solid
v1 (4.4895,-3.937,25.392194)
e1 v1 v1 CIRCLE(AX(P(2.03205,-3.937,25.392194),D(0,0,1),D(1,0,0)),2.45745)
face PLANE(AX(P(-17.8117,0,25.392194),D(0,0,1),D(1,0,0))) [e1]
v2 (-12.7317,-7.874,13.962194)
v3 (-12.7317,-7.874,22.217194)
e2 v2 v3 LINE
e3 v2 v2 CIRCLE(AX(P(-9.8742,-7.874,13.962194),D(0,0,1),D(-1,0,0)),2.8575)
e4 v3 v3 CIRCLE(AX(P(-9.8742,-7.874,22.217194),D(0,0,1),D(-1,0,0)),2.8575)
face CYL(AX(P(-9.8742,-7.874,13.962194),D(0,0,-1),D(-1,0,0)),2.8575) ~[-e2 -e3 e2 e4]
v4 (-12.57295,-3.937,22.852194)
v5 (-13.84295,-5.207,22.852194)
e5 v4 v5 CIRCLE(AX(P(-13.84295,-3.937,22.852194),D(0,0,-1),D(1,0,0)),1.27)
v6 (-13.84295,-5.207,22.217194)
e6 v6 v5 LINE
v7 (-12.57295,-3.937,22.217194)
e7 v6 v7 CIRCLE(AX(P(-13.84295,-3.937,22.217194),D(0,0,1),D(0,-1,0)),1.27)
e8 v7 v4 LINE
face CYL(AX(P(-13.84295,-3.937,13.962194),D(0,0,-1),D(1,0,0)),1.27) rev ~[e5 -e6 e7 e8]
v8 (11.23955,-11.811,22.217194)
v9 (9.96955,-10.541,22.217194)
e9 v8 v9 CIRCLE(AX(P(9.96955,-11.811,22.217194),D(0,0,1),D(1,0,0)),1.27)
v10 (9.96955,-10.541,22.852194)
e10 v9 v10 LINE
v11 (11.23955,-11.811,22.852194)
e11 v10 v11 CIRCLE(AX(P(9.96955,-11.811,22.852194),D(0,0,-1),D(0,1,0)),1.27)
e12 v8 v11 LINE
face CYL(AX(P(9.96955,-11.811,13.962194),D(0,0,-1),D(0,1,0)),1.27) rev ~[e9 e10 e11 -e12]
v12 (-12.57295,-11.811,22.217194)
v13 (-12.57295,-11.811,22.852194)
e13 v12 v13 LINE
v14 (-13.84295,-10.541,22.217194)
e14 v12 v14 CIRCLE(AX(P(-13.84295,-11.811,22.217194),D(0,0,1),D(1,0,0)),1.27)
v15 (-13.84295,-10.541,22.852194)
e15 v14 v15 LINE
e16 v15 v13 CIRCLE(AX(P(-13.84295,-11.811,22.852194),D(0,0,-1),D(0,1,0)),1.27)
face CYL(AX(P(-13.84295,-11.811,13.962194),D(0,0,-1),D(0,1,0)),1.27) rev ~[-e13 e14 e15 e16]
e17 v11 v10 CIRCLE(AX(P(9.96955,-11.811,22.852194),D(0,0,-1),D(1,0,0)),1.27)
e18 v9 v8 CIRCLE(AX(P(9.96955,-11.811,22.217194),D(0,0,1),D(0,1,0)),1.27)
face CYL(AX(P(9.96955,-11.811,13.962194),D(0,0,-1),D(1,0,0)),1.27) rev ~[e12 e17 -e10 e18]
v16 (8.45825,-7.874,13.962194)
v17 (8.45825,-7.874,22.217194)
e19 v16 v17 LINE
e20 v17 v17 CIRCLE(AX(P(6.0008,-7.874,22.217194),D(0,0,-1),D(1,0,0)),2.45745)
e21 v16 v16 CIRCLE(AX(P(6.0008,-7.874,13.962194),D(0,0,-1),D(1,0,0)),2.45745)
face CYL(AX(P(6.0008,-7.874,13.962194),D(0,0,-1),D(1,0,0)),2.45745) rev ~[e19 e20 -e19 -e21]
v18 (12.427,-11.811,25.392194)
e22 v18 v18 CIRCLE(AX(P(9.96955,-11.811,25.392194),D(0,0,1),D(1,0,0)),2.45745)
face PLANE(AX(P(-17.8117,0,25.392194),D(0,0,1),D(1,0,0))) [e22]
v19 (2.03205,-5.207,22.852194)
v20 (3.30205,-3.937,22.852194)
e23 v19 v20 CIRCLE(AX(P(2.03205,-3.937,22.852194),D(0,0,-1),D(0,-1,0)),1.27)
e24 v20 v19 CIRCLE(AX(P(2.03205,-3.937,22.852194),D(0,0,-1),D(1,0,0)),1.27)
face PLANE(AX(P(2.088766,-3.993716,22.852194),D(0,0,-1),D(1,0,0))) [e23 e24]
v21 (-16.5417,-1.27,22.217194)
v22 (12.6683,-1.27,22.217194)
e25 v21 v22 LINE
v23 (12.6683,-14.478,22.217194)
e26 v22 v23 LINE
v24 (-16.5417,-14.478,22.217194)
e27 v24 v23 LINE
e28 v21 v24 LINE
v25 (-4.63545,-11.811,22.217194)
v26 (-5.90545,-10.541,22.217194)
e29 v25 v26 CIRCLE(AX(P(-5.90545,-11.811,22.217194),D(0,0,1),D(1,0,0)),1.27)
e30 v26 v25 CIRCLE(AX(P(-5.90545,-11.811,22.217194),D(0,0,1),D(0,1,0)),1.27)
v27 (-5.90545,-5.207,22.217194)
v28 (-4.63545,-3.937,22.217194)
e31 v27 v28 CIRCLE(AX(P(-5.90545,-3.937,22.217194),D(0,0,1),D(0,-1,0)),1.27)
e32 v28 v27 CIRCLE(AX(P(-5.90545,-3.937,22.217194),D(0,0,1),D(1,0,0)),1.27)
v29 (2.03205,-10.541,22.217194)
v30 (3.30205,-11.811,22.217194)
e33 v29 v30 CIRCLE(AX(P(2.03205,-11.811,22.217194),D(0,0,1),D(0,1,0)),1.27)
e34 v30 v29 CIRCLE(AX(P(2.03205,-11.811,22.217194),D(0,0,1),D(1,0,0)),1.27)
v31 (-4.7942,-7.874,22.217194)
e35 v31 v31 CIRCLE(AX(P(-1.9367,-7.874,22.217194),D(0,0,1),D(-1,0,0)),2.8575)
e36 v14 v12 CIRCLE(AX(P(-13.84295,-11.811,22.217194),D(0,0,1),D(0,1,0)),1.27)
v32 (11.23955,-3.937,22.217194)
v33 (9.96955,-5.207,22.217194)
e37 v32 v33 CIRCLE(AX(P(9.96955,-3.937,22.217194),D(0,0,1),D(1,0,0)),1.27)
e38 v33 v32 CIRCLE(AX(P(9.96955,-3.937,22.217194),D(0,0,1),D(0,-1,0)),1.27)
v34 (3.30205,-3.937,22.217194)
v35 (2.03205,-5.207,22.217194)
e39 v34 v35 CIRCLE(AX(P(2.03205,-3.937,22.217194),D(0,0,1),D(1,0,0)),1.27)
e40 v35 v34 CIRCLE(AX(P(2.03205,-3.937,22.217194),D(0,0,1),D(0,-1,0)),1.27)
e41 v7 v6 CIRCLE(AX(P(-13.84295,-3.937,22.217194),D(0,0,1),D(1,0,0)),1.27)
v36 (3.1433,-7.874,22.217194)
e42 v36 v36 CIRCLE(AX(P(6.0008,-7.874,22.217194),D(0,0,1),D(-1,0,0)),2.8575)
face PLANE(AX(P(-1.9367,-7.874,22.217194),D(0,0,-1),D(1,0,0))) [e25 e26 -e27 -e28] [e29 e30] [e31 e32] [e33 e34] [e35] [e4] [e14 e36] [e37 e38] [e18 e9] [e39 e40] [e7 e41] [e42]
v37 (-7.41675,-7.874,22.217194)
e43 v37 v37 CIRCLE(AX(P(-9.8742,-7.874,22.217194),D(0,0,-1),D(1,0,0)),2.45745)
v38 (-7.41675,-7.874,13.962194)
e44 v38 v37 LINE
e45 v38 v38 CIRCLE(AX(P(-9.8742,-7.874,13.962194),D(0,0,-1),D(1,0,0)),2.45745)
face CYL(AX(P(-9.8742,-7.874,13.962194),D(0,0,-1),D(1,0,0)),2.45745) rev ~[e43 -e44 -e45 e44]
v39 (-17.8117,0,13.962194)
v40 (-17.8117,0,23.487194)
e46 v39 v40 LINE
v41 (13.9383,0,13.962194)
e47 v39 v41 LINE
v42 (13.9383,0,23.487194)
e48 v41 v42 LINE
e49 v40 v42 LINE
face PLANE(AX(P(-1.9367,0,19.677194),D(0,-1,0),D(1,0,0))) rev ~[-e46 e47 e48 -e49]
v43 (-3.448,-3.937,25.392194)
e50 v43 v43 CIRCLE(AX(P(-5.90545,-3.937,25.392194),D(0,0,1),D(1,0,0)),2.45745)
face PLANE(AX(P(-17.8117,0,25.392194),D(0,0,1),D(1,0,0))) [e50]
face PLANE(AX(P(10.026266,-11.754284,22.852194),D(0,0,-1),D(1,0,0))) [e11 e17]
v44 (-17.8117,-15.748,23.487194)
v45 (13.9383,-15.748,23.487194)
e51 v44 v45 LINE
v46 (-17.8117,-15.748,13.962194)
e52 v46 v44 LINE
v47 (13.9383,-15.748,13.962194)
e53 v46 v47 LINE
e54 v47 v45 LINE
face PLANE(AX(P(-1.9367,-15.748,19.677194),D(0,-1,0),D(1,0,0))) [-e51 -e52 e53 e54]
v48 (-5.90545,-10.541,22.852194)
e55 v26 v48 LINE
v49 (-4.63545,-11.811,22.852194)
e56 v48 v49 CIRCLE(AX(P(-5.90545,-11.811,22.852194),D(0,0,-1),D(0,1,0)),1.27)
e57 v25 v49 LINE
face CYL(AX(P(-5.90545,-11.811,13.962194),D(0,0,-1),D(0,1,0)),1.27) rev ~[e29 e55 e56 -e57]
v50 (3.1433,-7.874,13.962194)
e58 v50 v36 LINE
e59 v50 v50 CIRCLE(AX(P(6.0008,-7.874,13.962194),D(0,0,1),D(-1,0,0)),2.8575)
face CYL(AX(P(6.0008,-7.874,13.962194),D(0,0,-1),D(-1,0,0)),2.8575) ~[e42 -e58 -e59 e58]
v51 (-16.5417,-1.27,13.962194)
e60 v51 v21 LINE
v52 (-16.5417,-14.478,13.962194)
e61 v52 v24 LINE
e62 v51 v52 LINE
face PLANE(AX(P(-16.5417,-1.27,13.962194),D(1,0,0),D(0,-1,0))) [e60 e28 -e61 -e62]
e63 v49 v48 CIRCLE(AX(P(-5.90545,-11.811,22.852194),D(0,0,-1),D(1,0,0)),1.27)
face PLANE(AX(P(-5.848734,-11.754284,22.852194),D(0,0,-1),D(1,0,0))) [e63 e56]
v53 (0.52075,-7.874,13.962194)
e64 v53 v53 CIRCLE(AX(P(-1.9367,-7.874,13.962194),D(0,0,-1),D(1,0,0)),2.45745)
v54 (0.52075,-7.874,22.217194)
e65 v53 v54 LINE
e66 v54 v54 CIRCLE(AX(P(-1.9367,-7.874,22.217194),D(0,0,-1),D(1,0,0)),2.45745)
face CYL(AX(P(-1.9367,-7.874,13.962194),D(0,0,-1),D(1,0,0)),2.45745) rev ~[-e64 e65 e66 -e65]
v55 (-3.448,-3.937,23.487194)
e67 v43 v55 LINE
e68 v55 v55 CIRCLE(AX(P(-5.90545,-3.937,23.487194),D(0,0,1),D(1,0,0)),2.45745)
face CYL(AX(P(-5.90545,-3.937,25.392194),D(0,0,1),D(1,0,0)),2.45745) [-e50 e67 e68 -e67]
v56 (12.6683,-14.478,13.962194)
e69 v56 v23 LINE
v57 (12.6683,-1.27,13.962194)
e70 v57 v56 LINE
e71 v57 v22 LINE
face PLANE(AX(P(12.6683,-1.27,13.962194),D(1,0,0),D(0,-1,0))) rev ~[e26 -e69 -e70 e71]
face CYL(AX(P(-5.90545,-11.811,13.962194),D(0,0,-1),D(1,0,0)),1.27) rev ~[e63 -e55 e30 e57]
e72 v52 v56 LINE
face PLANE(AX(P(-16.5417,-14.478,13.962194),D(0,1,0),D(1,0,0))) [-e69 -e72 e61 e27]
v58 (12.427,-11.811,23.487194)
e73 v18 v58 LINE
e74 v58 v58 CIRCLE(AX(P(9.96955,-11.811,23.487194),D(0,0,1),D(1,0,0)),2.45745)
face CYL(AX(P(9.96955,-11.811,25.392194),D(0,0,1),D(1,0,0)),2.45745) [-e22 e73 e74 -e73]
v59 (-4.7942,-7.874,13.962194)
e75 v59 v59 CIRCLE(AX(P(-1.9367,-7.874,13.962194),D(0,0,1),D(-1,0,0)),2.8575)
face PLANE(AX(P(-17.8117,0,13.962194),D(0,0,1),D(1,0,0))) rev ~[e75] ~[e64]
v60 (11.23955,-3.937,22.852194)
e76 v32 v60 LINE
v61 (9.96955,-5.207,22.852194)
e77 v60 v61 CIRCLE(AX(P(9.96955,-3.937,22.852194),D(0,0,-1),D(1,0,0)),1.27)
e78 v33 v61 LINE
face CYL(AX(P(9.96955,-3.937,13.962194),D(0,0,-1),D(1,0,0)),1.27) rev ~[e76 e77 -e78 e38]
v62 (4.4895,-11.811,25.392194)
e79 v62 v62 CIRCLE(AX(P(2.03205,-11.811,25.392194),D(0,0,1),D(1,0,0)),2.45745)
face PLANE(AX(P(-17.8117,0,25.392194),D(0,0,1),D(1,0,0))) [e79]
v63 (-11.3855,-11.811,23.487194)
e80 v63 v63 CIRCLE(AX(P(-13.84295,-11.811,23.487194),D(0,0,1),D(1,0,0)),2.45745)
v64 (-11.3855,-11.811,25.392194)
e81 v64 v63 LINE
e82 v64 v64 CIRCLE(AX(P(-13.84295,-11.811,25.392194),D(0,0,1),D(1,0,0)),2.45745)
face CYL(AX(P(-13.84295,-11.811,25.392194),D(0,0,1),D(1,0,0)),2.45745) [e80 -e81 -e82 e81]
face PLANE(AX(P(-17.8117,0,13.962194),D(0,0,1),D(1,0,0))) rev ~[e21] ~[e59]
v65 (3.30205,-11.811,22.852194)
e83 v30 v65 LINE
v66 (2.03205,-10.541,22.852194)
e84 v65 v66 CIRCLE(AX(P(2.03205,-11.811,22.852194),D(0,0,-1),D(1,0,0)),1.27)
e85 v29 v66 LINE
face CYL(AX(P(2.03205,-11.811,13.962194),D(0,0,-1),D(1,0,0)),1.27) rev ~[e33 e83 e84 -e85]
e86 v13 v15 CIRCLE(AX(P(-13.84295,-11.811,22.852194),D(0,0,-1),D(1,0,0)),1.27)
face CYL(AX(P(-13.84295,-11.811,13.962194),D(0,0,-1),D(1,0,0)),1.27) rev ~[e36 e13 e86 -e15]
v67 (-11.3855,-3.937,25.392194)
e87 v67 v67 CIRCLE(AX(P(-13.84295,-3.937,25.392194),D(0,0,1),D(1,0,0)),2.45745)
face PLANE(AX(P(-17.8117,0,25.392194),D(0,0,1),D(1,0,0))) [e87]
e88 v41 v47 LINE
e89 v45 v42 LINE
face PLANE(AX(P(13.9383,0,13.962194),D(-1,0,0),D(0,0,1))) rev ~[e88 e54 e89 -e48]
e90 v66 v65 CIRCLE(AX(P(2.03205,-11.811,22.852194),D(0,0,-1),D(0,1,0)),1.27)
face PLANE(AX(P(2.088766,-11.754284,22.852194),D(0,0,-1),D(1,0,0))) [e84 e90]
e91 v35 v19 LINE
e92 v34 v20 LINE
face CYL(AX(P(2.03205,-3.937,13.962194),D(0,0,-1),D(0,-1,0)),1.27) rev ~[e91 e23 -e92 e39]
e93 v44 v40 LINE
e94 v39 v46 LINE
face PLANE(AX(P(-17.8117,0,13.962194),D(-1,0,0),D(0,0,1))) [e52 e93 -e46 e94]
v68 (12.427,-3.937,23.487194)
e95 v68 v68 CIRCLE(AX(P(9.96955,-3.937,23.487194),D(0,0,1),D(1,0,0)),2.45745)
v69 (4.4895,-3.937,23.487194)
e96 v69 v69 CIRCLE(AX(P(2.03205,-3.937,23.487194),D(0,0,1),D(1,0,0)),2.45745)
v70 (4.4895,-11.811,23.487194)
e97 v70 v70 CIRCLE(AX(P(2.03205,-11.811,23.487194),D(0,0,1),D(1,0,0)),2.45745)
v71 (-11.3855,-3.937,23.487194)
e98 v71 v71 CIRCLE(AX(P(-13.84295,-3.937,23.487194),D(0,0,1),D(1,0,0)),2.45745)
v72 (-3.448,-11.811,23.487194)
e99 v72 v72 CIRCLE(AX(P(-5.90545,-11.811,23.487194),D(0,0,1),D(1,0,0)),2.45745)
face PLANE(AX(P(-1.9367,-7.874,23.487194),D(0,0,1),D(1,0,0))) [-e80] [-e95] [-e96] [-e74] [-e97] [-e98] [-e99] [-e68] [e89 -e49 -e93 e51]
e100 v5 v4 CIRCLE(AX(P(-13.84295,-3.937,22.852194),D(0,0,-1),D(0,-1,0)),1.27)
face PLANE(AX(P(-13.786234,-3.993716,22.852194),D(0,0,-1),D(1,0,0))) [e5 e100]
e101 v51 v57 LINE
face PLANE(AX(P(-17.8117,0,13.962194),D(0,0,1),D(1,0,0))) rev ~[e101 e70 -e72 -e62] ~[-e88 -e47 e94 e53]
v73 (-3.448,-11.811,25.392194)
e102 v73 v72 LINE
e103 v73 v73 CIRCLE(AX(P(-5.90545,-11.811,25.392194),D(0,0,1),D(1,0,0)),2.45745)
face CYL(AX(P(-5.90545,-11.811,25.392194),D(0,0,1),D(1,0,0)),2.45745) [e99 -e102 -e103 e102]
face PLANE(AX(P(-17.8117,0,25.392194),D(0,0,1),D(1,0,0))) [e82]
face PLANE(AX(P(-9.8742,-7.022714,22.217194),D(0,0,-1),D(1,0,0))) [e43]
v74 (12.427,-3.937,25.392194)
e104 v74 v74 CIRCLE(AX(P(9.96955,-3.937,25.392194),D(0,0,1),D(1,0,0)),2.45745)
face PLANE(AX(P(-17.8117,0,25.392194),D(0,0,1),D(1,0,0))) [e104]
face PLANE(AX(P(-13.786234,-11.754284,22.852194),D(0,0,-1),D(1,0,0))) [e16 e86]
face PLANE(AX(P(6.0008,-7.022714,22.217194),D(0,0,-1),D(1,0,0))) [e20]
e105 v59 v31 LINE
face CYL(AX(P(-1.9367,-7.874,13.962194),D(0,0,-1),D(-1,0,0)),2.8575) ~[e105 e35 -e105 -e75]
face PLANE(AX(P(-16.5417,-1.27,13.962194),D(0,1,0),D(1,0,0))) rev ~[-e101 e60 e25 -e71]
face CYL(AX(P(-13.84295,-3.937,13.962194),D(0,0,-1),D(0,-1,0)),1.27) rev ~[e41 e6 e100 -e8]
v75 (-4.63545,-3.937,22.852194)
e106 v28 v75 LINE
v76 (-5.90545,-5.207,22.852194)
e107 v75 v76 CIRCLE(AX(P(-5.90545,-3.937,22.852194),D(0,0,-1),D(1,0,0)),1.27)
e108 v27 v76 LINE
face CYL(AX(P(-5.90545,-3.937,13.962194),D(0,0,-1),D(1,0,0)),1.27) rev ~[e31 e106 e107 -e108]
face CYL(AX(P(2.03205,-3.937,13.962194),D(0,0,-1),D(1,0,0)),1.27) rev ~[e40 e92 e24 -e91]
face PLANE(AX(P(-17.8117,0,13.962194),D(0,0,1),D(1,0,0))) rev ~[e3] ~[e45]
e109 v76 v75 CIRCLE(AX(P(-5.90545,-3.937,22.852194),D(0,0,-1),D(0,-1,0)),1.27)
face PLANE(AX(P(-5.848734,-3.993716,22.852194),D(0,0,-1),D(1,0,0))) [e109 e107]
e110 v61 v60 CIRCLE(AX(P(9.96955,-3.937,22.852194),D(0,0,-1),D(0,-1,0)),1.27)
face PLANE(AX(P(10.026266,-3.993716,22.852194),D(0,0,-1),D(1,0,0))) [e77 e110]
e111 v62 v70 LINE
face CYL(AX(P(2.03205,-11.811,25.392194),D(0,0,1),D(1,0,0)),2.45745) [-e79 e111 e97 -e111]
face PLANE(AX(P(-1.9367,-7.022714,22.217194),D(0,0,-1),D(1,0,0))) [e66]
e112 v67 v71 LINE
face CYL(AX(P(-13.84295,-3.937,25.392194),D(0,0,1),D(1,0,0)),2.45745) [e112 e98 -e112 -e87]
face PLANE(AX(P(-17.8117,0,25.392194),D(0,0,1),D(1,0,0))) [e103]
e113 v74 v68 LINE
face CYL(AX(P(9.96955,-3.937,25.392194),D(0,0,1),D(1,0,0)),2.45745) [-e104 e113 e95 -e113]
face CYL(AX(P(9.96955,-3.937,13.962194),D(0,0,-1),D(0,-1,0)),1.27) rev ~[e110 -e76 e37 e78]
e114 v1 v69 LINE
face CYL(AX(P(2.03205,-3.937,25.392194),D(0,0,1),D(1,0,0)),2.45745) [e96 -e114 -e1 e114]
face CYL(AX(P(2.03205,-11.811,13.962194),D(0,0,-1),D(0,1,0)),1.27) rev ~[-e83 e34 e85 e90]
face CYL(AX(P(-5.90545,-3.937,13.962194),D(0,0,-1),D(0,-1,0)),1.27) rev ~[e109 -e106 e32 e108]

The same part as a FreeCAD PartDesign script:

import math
import FreeCAD as App
import Part
import Sketcher

V = App.Vector
Q = App.Units.Quantity


def add_polygon(sketch, points):
    """Adds a closed chain of lines whose ends are joined by coincident constraints."""
    first, n = sketch.GeometryCount, len(points)
    for a, b in zip(points, points[1:] + points[:1]):
        sketch.addGeometry(Part.LineSegment(App.Vector(*a, 0), App.Vector(*b, 0)), False)
    for i in range(n):
        sketch.addConstraint(Sketcher.Constraint("Coincident", first + i, 2, first + (i + 1) % n, 1))

doc = App.newDocument("Part")
body = doc.addObject("PartDesign::Body", "Body")

# Sketch on XZ plane
sketch1 = body.newObject("Sketcher::SketchObject", "Sketch")
sketch1.AttachmentSupport = (doc.getObject("XZ_Plane"), [""])
sketch1.MapMode = "FlatFace"
add_polygon(sketch1, [(-18, 25), (-18, 14), (14, 14), (14, 25)])  # lines 0-3
sketch1.addConstraint(Sketcher.Constraint("Vertical", 0))
sketch1.addConstraint(Sketcher.Constraint("Horizontal", 1))
sketch1.addConstraint(Sketcher.Constraint("Vertical", 2))
sketch1.addConstraint(Sketcher.Constraint("Horizontal", 3))
sketch1.addConstraint(Sketcher.Constraint("DistanceX", 1, 1, 1, 2, Q("1.25 in")))
sketch1.addConstraint(Sketcher.Constraint("DistanceY", 0, 2, 0, 1, Q("0.45 in")))
sketch1.addConstraint(Sketcher.Constraint("DistanceX", 0, 2, -1, 1, Q("17.8117 mm")))
sketch1.addConstraint(Sketcher.Constraint("DistanceY", -1, 1, 0, 2, Q("13.962194 mm")))
pad1 = body.newObject("PartDesign::Pad", "Pad")
pad1.Profile = sketch1
pad1.Length = Q("0.62 in")

# Sketch on XY plane
sketch2 = body.newObject("Sketcher::SketchObject", "Sketch001")
sketch2.AttachmentSupport = (doc.getObject("XY_Plane"), [""])
sketch2.MapMode = "FlatFace"
sketch2.AttachmentOffset = App.Placement(V(0, 0, 25.392194), App.Rotation())
add_polygon(sketch2, [(-17.8, 0), (-17.8, -15.7), (13.9, -15.7), (13.9, 0)])  # lines 0-3
sketch2.addGeometry(Part.Circle(V(-13.8, -11.8, 0), V(0, 0, 1), 2.5), False)  # 4
sketch2.addGeometry(Part.Circle(V(-5.9, -11.8, 0), V(0, 0, 1), 2.5), False)  # 5
sketch2.addGeometry(Part.Circle(V(2, -11.8, 0), V(0, 0, 1), 2.5), False)  # 6
sketch2.addGeometry(Part.Circle(V(10, -11.8, 0), V(0, 0, 1), 2.5), False)  # 7
sketch2.addGeometry(Part.Circle(V(-13.8, -3.9, 0), V(0, 0, 1), 2.5), False)  # 8
sketch2.addGeometry(Part.Circle(V(-5.9, -3.9, 0), V(0, 0, 1), 2.5), False)  # 9
sketch2.addGeometry(Part.Circle(V(2, -3.9, 0), V(0, 0, 1), 2.5), False)  # 10
sketch2.addGeometry(Part.Circle(V(10, -3.9, 0), V(0, 0, 1), 2.5), False)  # 11
sketch2.addConstraint(Sketcher.Constraint("Vertical", 0))
sketch2.addConstraint(Sketcher.Constraint("Horizontal", 1))
sketch2.addConstraint(Sketcher.Constraint("Vertical", 2))
sketch2.addConstraint(Sketcher.Constraint("Horizontal", 3))
sketch2.addConstraint(Sketcher.Constraint("Equal", 4, 5))
sketch2.addConstraint(Sketcher.Constraint("Equal", 5, 6))
sketch2.addConstraint(Sketcher.Constraint("Equal", 6, 7))
sketch2.addConstraint(Sketcher.Constraint("Equal", 7, 8))
sketch2.addConstraint(Sketcher.Constraint("Equal", 8, 9))
sketch2.addConstraint(Sketcher.Constraint("Equal", 9, 10))
sketch2.addConstraint(Sketcher.Constraint("Equal", 10, 11))
sketch2.addConstraint(Sketcher.Constraint("PointOnObject", 2, 2, -1))
sketch2.addConstraint(Sketcher.Constraint("Horizontal", 4, 3, 5, 3))
sketch2.addConstraint(Sketcher.Constraint("Horizontal", 5, 3, 6, 3))
sketch2.addConstraint(Sketcher.Constraint("Horizontal", 6, 3, 7, 3))
sketch2.addConstraint(Sketcher.Constraint("Horizontal", 8, 3, 9, 3))
sketch2.addConstraint(Sketcher.Constraint("Horizontal", 9, 3, 10, 3))
sketch2.addConstraint(Sketcher.Constraint("Horizontal", 10, 3, 11, 3))
sketch2.addConstraint(Sketcher.Constraint("Vertical", 4, 3, 8, 3))
sketch2.addConstraint(Sketcher.Constraint("Vertical", 5, 3, 9, 3))
sketch2.addConstraint(Sketcher.Constraint("Vertical", 6, 3, 10, 3))
sketch2.addConstraint(Sketcher.Constraint("Vertical", 7, 3, 11, 3))
sketch2.addConstraint(Sketcher.Constraint("Diameter", 4, Q("0.1935 in")))
sketch2.addConstraint(Sketcher.Constraint("DistanceX", 1, 1, 1, 2, Q("1.25 in")))
sketch2.addConstraint(Sketcher.Constraint("DistanceY", 0, 2, 0, 1, Q("0.62 in")))
sketch2.addConstraint(Sketcher.Constraint("DistanceY", 4, 3, 8, 3, Q("0.31 in")))
sketch2.addConstraint(Sketcher.Constraint("DistanceY", 4, 3, -1, 1, Q("0.465 in")))
sketch2.addConstraint(Sketcher.Constraint("DistanceX", 4, 3, 5, 3, Q("0.3125 in")))
sketch2.addConstraint(Sketcher.Constraint("DistanceX", 5, 3, 6, 3, Q("0.3125 in")))
sketch2.addConstraint(Sketcher.Constraint("DistanceX", 6, 3, 7, 3, Q("0.3125 in")))
sketch2.addConstraint(Sketcher.Constraint("DistanceX", 0, 2, 4, 3, Q("0.15625 in")))
sketch2.addConstraint(Sketcher.Constraint("DistanceX", 0, 2, -1, 1, Q("17.8117 mm")))
pocket1 = body.newObject("PartDesign::Pocket", "Pocket")
pocket1.Profile = sketch2
pocket1.Length = Q("0.075 in")

# Sketch on XY plane
sketch3 = body.newObject("Sketcher::SketchObject", "Sketch002")
sketch3.AttachmentSupport = (doc.getObject("XY_Plane"), [""])
sketch3.MapMode = "FlatFace"
sketch3.AttachmentOffset = App.Placement(V(0, 0, 13.962194), App.Rotation())
sketch3.addGeometry(Part.ArcOfCircle(Part.Circle(V(10, -3.9, 0), V(0, 0, 1), 1.3), math.radians(-90), math.radians(0)), False)
sketch3.addGeometry(Part.ArcOfCircle(Part.Circle(V(10, -3.9, 0), V(0, 0, 1), 1.3), math.radians(0), math.radians(270)), False)
sketch3.addGeometry(Part.ArcOfCircle(Part.Circle(V(10, -11.8, 0), V(0, 0, 1), 1.3), math.radians(90), math.radians(360)), False)
sketch3.addGeometry(Part.ArcOfCircle(Part.Circle(V(10, -11.8, 0), V(0, 0, 1), 1.3), math.radians(0), math.radians(90)), False)
sketch3.addGeometry(Part.ArcOfCircle(Part.Circle(V(2, -11.8, 0), V(0, 0, 1), 1.3), math.radians(90), math.radians(360)), False)
sketch3.addGeometry(Part.ArcOfCircle(Part.Circle(V(2, -11.8, 0), V(0, 0, 1), 1.3), math.radians(0), math.radians(90)), False)
sketch3.addGeometry(Part.ArcOfCircle(Part.Circle(V(2, -3.9, 0), V(0, 0, 1), 1.3), math.radians(-90), math.radians(0)), False)
sketch3.addGeometry(Part.ArcOfCircle(Part.Circle(V(2, -3.9, 0), V(0, 0, 1), 1.3), math.radians(0), math.radians(270)), False)
sketch3.addGeometry(Part.ArcOfCircle(Part.Circle(V(-5.9, -11.8, 0), V(0, 0, 1), 1.3), math.radians(90), math.radians(360)), False)
sketch3.addGeometry(Part.ArcOfCircle(Part.Circle(V(-5.9, -11.8, 0), V(0, 0, 1), 1.3), math.radians(0), math.radians(90)), False)
sketch3.addGeometry(Part.ArcOfCircle(Part.Circle(V(-5.9, -3.9, 0), V(0, 0, 1), 1.3), math.radians(-90), math.radians(0)), False)
sketch3.addGeometry(Part.ArcOfCircle(Part.Circle(V(-5.9, -3.9, 0), V(0, 0, 1), 1.3), math.radians(0), math.radians(270)), False)
sketch3.addGeometry(Part.ArcOfCircle(Part.Circle(V(-13.8, -11.8, 0), V(0, 0, 1), 1.3), math.radians(0), math.radians(90)), False)
sketch3.addGeometry(Part.ArcOfCircle(Part.Circle(V(-13.8, -11.8, 0), V(0, 0, 1), 1.3), math.radians(90), math.radians(360)), False)
sketch3.addGeometry(Part.ArcOfCircle(Part.Circle(V(-13.8, -3.9, 0), V(0, 0, 1), 1.3), math.radians(-90), math.radians(0)), False)
sketch3.addGeometry(Part.ArcOfCircle(Part.Circle(V(-13.8, -3.9, 0), V(0, 0, 1), 1.3), math.radians(0), math.radians(270)), False)
sketch3.addConstraint(Sketcher.Constraint("Tangent", 0, 1, 1, 2))
sketch3.addConstraint(Sketcher.Constraint("Coincident", 1, 1, 0, 2))
sketch3.addConstraint(Sketcher.Constraint("Tangent", 2, 1, 3, 2))
sketch3.addConstraint(Sketcher.Constraint("Coincident", 3, 1, 2, 2))
sketch3.addConstraint(Sketcher.Constraint("Tangent", 4, 1, 5, 2))
sketch3.addConstraint(Sketcher.Constraint("Coincident", 5, 1, 4, 2))
sketch3.addConstraint(Sketcher.Constraint("Tangent", 6, 1, 7, 2))
sketch3.addConstraint(Sketcher.Constraint("Coincident", 7, 1, 6, 2))
sketch3.addConstraint(Sketcher.Constraint("Tangent", 8, 1, 9, 2))
sketch3.addConstraint(Sketcher.Constraint("Coincident", 9, 1, 8, 2))
sketch3.addConstraint(Sketcher.Constraint("Tangent", 10, 1, 11, 2))
sketch3.addConstraint(Sketcher.Constraint("Coincident", 11, 1, 10, 2))
sketch3.addConstraint(Sketcher.Constraint("Tangent", 12, 1, 13, 2))
sketch3.addConstraint(Sketcher.Constraint("Coincident", 13, 1, 12, 2))
sketch3.addConstraint(Sketcher.Constraint("Tangent", 14, 1, 15, 2))
sketch3.addConstraint(Sketcher.Constraint("Coincident", 15, 1, 14, 2))
sketch3.addConstraint(Sketcher.Constraint("Equal", 1, 2))
sketch3.addConstraint(Sketcher.Constraint("Equal", 3, 4))
sketch3.addConstraint(Sketcher.Constraint("Equal", 5, 6))
sketch3.addConstraint(Sketcher.Constraint("Equal", 7, 8))
sketch3.addConstraint(Sketcher.Constraint("Equal", 9, 10))
sketch3.addConstraint(Sketcher.Constraint("Equal", 11, 12))
sketch3.addConstraint(Sketcher.Constraint("Equal", 13, 14))
sketch3.addConstraint(Sketcher.Constraint("Horizontal", 3, 3, 4, 3))
sketch3.addConstraint(Sketcher.Constraint("Horizontal", 1, 3, 6, 3))
sketch3.addConstraint(Sketcher.Constraint("Horizontal", 5, 3, 8, 3))
sketch3.addConstraint(Sketcher.Constraint("Horizontal", 7, 3, 10, 3))
sketch3.addConstraint(Sketcher.Constraint("Horizontal", 9, 3, 12, 3))
sketch3.addConstraint(Sketcher.Constraint("Horizontal", 11, 3, 14, 3))
sketch3.addConstraint(Sketcher.Constraint("Horizontal", 15, 3, 1, 1))
sketch3.addConstraint(Sketcher.Constraint("Horizontal", 13, 3, 3, 1))
sketch3.addConstraint(Sketcher.Constraint("Horizontal", 3, 1, 5, 1))
sketch3.addConstraint(Sketcher.Constraint("Horizontal", 1, 1, 7, 1))
sketch3.addConstraint(Sketcher.Constraint("Horizontal", 5, 1, 9, 1))
sketch3.addConstraint(Sketcher.Constraint("Horizontal", 7, 1, 11, 1))
sketch3.addConstraint(Sketcher.Constraint("Horizontal", 9, 1, 12, 1))
sketch3.addConstraint(Sketcher.Constraint("Horizontal", 11, 1, 15, 1))
sketch3.addConstraint(Sketcher.Constraint("Vertical", 1, 3, 2, 3))
sketch3.addConstraint(Sketcher.Constraint("Vertical", 5, 3, 6, 3))
sketch3.addConstraint(Sketcher.Constraint("Vertical", 9, 3, 10, 3))
sketch3.addConstraint(Sketcher.Constraint("Vertical", 13, 3, 14, 3))
sketch3.addConstraint(Sketcher.Constraint("Vertical", 3, 3, 0, 1))
sketch3.addConstraint(Sketcher.Constraint("Vertical", 0, 1, 2, 1))
sketch3.addConstraint(Sketcher.Constraint("Vertical", 7, 3, 4, 1))
sketch3.addConstraint(Sketcher.Constraint("Vertical", 4, 1, 6, 1))
sketch3.addConstraint(Sketcher.Constraint("Vertical", 11, 3, 8, 1))
sketch3.addConstraint(Sketcher.Constraint("Vertical", 8, 1, 10, 1))
sketch3.addConstraint(Sketcher.Constraint("Vertical", 15, 3, 13, 1))
sketch3.addConstraint(Sketcher.Constraint("Vertical", 13, 1, 14, 1))
sketch3.addConstraint(Sketcher.Constraint("Radius", 0, Q("0.05 in")))
sketch3.addConstraint(Sketcher.Constraint("DistanceY", 2, 3, 0, 3, Q("0.31 in")))
sketch3.addConstraint(Sketcher.Constraint("DistanceY", 0, 3, -1, 1, Q("0.155 in")))
sketch3.addConstraint(Sketcher.Constraint("DistanceX", 4, 3, 2, 3, Q("0.3125 in")))
sketch3.addConstraint(Sketcher.Constraint("DistanceX", 8, 3, 4, 3, Q("0.3125 in")))
sketch3.addConstraint(Sketcher.Constraint("DistanceX", 12, 3, 8, 3, Q("0.3125 in")))
sketch3.addConstraint(Sketcher.Constraint("DistanceX", -1, 1, 0, 3, Q("9.96955 mm")))
pocket2 = body.newObject("PartDesign::Pocket", "Pocket001")
pocket2.Profile = sketch3
pocket2.Length = Q("0.35 in")
pocket2.Reversed = True

# Sketch on XY plane
sketch4 = body.newObject("Sketcher::SketchObject", "Sketch003")
sketch4.AttachmentSupport = (doc.getObject("XY_Plane"), [""])
sketch4.MapMode = "FlatFace"
sketch4.AttachmentOffset = App.Placement(V(0, 0, 13.962194), App.Rotation())
add_polygon(sketch4, [(-16.5, -14.5), (-16.5, -1.3), (12.7, -1.3), (12.7, -14.5)])  # lines 0-3
sketch4.addGeometry(Part.ArcOfCircle(Part.Circle(V(-13.8, -3.9, 0), V(0, 0, 1), 1.3), math.radians(-90), math.radians(0)), False)  # 4
sketch4.addGeometry(Part.ArcOfCircle(Part.Circle(V(-13.8, -3.9, 0), V(0, 0, 1), 1.3), math.radians(0), math.radians(270)), False)  # 5
sketch4.addGeometry(Part.ArcOfCircle(Part.Circle(V(-5.9, -3.9, 0), V(0, 0, 1), 1.3), math.radians(-90), math.radians(0)), False)  # 6
sketch4.addGeometry(Part.ArcOfCircle(Part.Circle(V(-5.9, -3.9, 0), V(0, 0, 1), 1.3), math.radians(0), math.radians(270)), False)  # 7
sketch4.addGeometry(Part.ArcOfCircle(Part.Circle(V(2, -3.9, 0), V(0, 0, 1), 1.3), math.radians(-90), math.radians(0)), False)  # 8
sketch4.addGeometry(Part.ArcOfCircle(Part.Circle(V(2, -3.9, 0), V(0, 0, 1), 1.3), math.radians(0), math.radians(270)), False)  # 9
sketch4.addGeometry(Part.ArcOfCircle(Part.Circle(V(10, -3.9, 0), V(0, 0, 1), 1.3), math.radians(-90), math.radians(0)), False)  # 10
sketch4.addGeometry(Part.ArcOfCircle(Part.Circle(V(10, -3.9, 0), V(0, 0, 1), 1.3), math.radians(0), math.radians(270)), False)  # 11
sketch4.addGeometry(Part.Circle(V(-9.9, -7.9, 0), V(0, 0, 1), 2.9), False)  # 12
sketch4.addGeometry(Part.Circle(V(-1.9, -7.9, 0), V(0, 0, 1), 2.9), False)  # 13
sketch4.addGeometry(Part.ArcOfCircle(Part.Circle(V(-13.8, -11.8, 0), V(0, 0, 1), 1.3), math.radians(0), math.radians(90)), False)  # 14
sketch4.addGeometry(Part.ArcOfCircle(Part.Circle(V(-13.8, -11.8, 0), V(0, 0, 1), 1.3), math.radians(90), math.radians(360)), False)  # 15
sketch4.addGeometry(Part.ArcOfCircle(Part.Circle(V(-5.9, -11.8, 0), V(0, 0, 1), 1.3), math.radians(90), math.radians(360)), False)  # 16
sketch4.addGeometry(Part.ArcOfCircle(Part.Circle(V(-5.9, -11.8, 0), V(0, 0, 1), 1.3), math.radians(0), math.radians(90)), False)  # 17
sketch4.addGeometry(Part.Circle(V(6, -7.9, 0), V(0, 0, 1), 2.9), False)  # 18
sketch4.addGeometry(Part.ArcOfCircle(Part.Circle(V(2, -11.8, 0), V(0, 0, 1), 1.3), math.radians(90), math.radians(360)), False)  # 19
sketch4.addGeometry(Part.ArcOfCircle(Part.Circle(V(2, -11.8, 0), V(0, 0, 1), 1.3), math.radians(0), math.radians(90)), False)  # 20
sketch4.addGeometry(Part.ArcOfCircle(Part.Circle(V(10, -11.8, 0), V(0, 0, 1), 1.3), math.radians(90), math.radians(360)), False)  # 21
sketch4.addGeometry(Part.ArcOfCircle(Part.Circle(V(10, -11.8, 0), V(0, 0, 1), 1.3), math.radians(0), math.radians(90)), False)  # 22
sketch4.addGeometry(Part.Circle(V(6, -7.9, 0), V(0, 0, 1), 2.5), False)  # 23
sketch4.addGeometry(Part.Circle(V(-1.9, -7.9, 0), V(0, 0, 1), 2.5), False)  # 24
sketch4.addGeometry(Part.Circle(V(-9.9, -7.9, 0), V(0, 0, 1), 2.5), False)  # 25
sketch4.addConstraint(Sketcher.Constraint("Tangent", 4, 1, 5, 2))
sketch4.addConstraint(Sketcher.Constraint("Coincident", 5, 1, 4, 2))
sketch4.addConstraint(Sketcher.Constraint("Tangent", 6, 1, 7, 2))
sketch4.addConstraint(Sketcher.Constraint("Coincident", 7, 1, 6, 2))
sketch4.addConstraint(Sketcher.Constraint("Tangent", 8, 1, 9, 2))
sketch4.addConstraint(Sketcher.Constraint("Coincident", 9, 1, 8, 2))
sketch4.addConstraint(Sketcher.Constraint("Tangent", 10, 1, 11, 2))
sketch4.addConstraint(Sketcher.Constraint("Coincident", 11, 1, 10, 2))
sketch4.addConstraint(Sketcher.Constraint("Tangent", 14, 1, 15, 2))
sketch4.addConstraint(Sketcher.Constraint("Coincident", 15, 1, 14, 2))
sketch4.addConstraint(Sketcher.Constraint("Tangent", 16, 1, 17, 2))
sketch4.addConstraint(Sketcher.Constraint("Coincident", 17, 1, 16, 2))
sketch4.addConstraint(Sketcher.Constraint("Tangent", 19, 1, 20, 2))
sketch4.addConstraint(Sketcher.Constraint("Coincident", 20, 1, 19, 2))
sketch4.addConstraint(Sketcher.Constraint("Tangent", 21, 1, 22, 2))
sketch4.addConstraint(Sketcher.Constraint("Coincident", 22, 1, 21, 2))
sketch4.addConstraint(Sketcher.Constraint("Vertical", 0))
sketch4.addConstraint(Sketcher.Constraint("Horizontal", 1))
sketch4.addConstraint(Sketcher.Constraint("Vertical", 2))
sketch4.addConstraint(Sketcher.Constraint("Horizontal", 3))
sketch4.addConstraint(Sketcher.Constraint("Coincident", 23, 3, 18, 3))
sketch4.addConstraint(Sketcher.Constraint("Coincident", 24, 3, 13, 3))
sketch4.addConstraint(Sketcher.Constraint("Coincident", 25, 3, 12, 3))
sketch4.addConstraint(Sketcher.Constraint("Equal", 5, 6))
sketch4.addConstraint(Sketcher.Constraint("Equal", 7, 8))
sketch4.addConstraint(Sketcher.Constraint("Equal", 9, 10))
sketch4.addConstraint(Sketcher.Constraint("Equal", 12, 13))
sketch4.addConstraint(Sketcher.Constraint("Equal", 11, 14))
sketch4.addConstraint(Sketcher.Constraint("Equal", 15, 16))
sketch4.addConstraint(Sketcher.Constraint("Equal", 13, 18))
sketch4.addConstraint(Sketcher.Constraint("Equal", 17, 19))
sketch4.addConstraint(Sketcher.Constraint("Equal", 20, 21))
sketch4.addConstraint(Sketcher.Constraint("Equal", 23, 24))
sketch4.addConstraint(Sketcher.Constraint("Equal", 24, 25))
sketch4.addConstraint(Sketcher.Constraint("Horizontal", 5, 3, 6, 3))
sketch4.addConstraint(Sketcher.Constraint("Horizontal", 7, 3, 8, 3))
sketch4.addConstraint(Sketcher.Constraint("Horizontal", 9, 3, 10, 3))
sketch4.addConstraint(Sketcher.Constraint("Horizontal", 12, 3, 13, 3))
sketch4.addConstraint(Sketcher.Constraint("Horizontal", 15, 3, 16, 3))
sketch4.addConstraint(Sketcher.Constraint("Horizontal", 13, 3, 18, 3))
sketch4.addConstraint(Sketcher.Constraint("Horizontal", 17, 3, 19, 3))
sketch4.addConstraint(Sketcher.Constraint("Horizontal", 20, 3, 21, 3))
sketch4.addConstraint(Sketcher.Constraint("Horizontal", 11, 3, 5, 1))
sketch4.addConstraint(Sketcher.Constraint("Horizontal", 5, 1, 7, 1))
sketch4.addConstraint(Sketcher.Constraint("Horizontal", 7, 1, 9, 1))
sketch4.addConstraint(Sketcher.Constraint("Horizontal", 9, 1, 11, 1))
sketch4.addConstraint(Sketcher.Constraint("Horizontal", 22, 3, 14, 1))
sketch4.addConstraint(Sketcher.Constraint("Horizontal", 14, 1, 17, 1))
sketch4.addConstraint(Sketcher.Constraint("Horizontal", 17, 1, 20, 1))
sketch4.addConstraint(Sketcher.Constraint("Horizontal", 20, 1, 22, 1))
sketch4.addConstraint(Sketcher.Constraint("Vertical", 5, 3, 14, 3))
sketch4.addConstraint(Sketcher.Constraint("Vertical", 7, 3, 16, 3))
sketch4.addConstraint(Sketcher.Constraint("Vertical", 9, 3, 19, 3))
sketch4.addConstraint(Sketcher.Constraint("Vertical", 11, 3, 21, 3))
sketch4.addConstraint(Sketcher.Constraint("Vertical", 15, 3, 4, 1))
sketch4.addConstraint(Sketcher.Constraint("Vertical", 17, 3, 6, 1))
sketch4.addConstraint(Sketcher.Constraint("Vertical", 20, 3, 8, 1))
sketch4.addConstraint(Sketcher.Constraint("Vertical", 22, 3, 10, 1))
sketch4.addConstraint(Sketcher.Constraint("Vertical", 4, 1, 15, 1))
sketch4.addConstraint(Sketcher.Constraint("Vertical", 6, 1, 16, 1))
sketch4.addConstraint(Sketcher.Constraint("Vertical", 8, 1, 19, 1))
sketch4.addConstraint(Sketcher.Constraint("Vertical", 10, 1, 21, 1))
sketch4.addConstraint(Sketcher.Constraint("Radius", 4, Q("0.05 in")))
sketch4.addConstraint(Sketcher.Constraint("Diameter", 12, Q("0.225 in")))
sketch4.addConstraint(Sketcher.Constraint("Diameter", 23, Q("0.1935 in")))
sketch4.addConstraint(Sketcher.Constraint("DistanceX", 1, 1, 1, 2, Q("1.15 in")))
sketch4.addConstraint(Sketcher.Constraint("DistanceY", 0, 1, 0, 2, Q("0.52 in")))
sketch4.addConstraint(Sketcher.Constraint("DistanceY", 12, 3, -1, 1, Q("0.31 in")))
sketch4.addConstraint(Sketcher.Constraint("DistanceY", 0, 2, -1, 1, Q("0.05 in")))
sketch4.addConstraint(Sketcher.Constraint("DistanceY", 14, 3, 4, 3, Q("0.31 in")))
sketch4.addConstraint(Sketcher.Constraint("DistanceY", 4, 3, -1, 1, Q("0.155 in")))
sketch4.addConstraint(Sketcher.Constraint("DistanceX", 4, 3, 6, 3, Q("0.3125 in")))
sketch4.addConstraint(Sketcher.Constraint("DistanceX", 6, 3, 8, 3, Q("0.3125 in")))
sketch4.addConstraint(Sketcher.Constraint("DistanceX", 8, 3, 10, 3, Q("0.3125 in")))
sketch4.addConstraint(Sketcher.Constraint("DistanceX", 4, 3, 12, 3, Q("0.15625 in")))
sketch4.addConstraint(Sketcher.Constraint("DistanceX", 6, 3, 13, 3, Q("0.15625 in")))
sketch4.addConstraint(Sketcher.Constraint("DistanceX", 8, 3, 18, 3, Q("0.15625 in")))
sketch4.addConstraint(Sketcher.Constraint("DistanceX", 3, 2, 14, 1, Q("0.15625 in")))
sketch4.addConstraint(Sketcher.Constraint("DistanceX", 12, 3, -1, 1, Q("9.8742 mm")))
pocket3 = body.newObject("PartDesign::Pocket", "Pocket002")
pocket3.Profile = sketch4
pocket3.Length = Q("0.325 in")
pocket3.Reversed = True

doc.recompute()
